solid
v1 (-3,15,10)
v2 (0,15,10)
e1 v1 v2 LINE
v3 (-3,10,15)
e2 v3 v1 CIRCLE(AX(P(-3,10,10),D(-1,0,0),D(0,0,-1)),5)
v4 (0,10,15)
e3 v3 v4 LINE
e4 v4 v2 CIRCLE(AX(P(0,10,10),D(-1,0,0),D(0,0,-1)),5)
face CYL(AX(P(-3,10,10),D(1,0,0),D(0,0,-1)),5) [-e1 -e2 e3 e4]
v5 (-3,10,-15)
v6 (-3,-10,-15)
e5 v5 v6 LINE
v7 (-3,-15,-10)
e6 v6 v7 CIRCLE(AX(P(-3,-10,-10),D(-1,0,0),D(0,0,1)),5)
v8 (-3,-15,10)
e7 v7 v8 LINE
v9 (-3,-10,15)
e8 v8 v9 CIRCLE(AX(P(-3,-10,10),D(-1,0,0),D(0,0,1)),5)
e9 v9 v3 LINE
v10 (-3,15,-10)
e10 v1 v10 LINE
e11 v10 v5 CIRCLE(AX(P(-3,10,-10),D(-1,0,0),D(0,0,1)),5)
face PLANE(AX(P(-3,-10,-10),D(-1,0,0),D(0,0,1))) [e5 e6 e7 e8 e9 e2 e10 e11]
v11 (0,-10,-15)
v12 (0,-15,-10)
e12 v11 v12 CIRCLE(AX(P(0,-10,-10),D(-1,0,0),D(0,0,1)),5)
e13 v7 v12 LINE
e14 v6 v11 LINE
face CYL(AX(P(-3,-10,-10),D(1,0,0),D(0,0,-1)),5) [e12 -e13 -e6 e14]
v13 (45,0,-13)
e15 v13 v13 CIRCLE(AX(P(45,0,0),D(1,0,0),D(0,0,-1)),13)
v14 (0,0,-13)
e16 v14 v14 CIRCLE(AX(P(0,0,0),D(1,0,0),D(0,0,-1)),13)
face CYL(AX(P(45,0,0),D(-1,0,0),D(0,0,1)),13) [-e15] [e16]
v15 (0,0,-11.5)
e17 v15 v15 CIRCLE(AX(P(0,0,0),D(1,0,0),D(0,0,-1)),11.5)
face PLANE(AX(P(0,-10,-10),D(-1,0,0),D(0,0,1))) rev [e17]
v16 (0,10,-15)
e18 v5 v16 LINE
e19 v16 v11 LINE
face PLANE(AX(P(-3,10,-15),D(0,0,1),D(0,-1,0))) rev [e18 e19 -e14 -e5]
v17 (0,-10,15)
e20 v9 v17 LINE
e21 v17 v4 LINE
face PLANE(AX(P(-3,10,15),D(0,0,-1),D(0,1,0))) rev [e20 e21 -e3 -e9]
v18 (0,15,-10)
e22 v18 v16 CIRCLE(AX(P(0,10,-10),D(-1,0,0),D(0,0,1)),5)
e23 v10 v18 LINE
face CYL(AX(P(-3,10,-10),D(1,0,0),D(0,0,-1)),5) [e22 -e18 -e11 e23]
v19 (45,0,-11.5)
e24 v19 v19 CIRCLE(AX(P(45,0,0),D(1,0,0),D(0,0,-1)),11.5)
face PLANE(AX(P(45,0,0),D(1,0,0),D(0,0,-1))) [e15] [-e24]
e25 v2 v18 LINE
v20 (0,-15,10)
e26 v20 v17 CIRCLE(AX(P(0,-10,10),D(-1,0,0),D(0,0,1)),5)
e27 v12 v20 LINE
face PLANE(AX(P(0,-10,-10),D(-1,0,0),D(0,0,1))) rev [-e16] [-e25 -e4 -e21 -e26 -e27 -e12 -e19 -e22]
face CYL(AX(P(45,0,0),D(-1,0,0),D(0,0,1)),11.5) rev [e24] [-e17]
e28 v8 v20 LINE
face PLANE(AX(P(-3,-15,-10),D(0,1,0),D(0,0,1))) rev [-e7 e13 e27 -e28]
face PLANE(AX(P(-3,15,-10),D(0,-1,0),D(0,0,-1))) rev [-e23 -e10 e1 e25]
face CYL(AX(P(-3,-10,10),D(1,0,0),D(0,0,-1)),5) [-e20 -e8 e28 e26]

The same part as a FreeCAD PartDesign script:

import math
import FreeCAD as App
import Part
import Sketcher

V = App.Vector
Q = App.Units.Quantity

doc = App.newDocument("Part")
body = doc.addObject("PartDesign::Body", "Body")

sketch1 = doc.addObject("Sketcher::SketchObject", "Sketch")
body.addObject(sketch1)
sketch1.AttachmentSupport = (doc.YZ_Plane, [""])
sketch1.MapMode = "FlatFace"
sketch1.addGeometry([
    Part.Circle(V(0, 0, 0), V(0, 0, 1), 13),
    Part.Circle(V(0, 0, 0), V(0, 0, 1), 11.5),
], False)
sketch1.addConstraint([
    Sketcher.Constraint("Coincident", 0, 3, -1, 1),
    Sketcher.Constraint("Coincident", 1, 3, -1, 1),
    Sketcher.Constraint("Diameter", 0, Q("26 mm")),
    Sketcher.Constraint("Diameter", 1, Q("23 mm")),
])
pad1 = doc.addObject("PartDesign::Pad", "Pad")
body.addObject(pad1)
pad1.Profile = sketch1
pad1.Length = 45

sketch2 = doc.addObject("Sketcher::SketchObject", "Sketch001")
body.addObject(sketch2)
sketch2.AttachmentSupport = (doc.YZ_Plane, [""])
sketch2.MapMode = "FlatFace"
sketch2.addGeometry([
    Part.LineSegment(V(15, 10, 0), V(15, -10, 0)),
    Part.ArcOfCircle(Part.Circle(V(10, -10, 0), V(0, 0, 1), 5), math.radians(-90), math.radians(0)),
    Part.LineSegment(V(10, -15, 0), V(-10, -15, 0)),
    Part.ArcOfCircle(Part.Circle(V(-10, -10, 0), V(0, 0, 1), 5), math.radians(180), math.radians(270)),
    Part.LineSegment(V(-15, -10, 0), V(-15, 10, 0)),
    Part.ArcOfCircle(Part.Circle(V(-10, 10, 0), V(0, 0, 1), 5), math.radians(90), math.radians(180)),
    Part.LineSegment(V(-10, 15, 0), V(10, 15, 0)),
    Part.ArcOfCircle(Part.Circle(V(10, 10, 0), V(0, 0, 1), 5), math.radians(0), math.radians(90)),
], False)
sketch2.addConstraint([
    Sketcher.Constraint("Tangent", 0, 2, 1, 2),
    Sketcher.Constraint("Tangent", 1, 1, 2, 1),
    Sketcher.Constraint("Tangent", 2, 2, 3, 2),
    Sketcher.Constraint("Tangent", 3, 1, 4, 1),
    Sketcher.Constraint("Tangent", 4, 2, 5, 2),
    Sketcher.Constraint("Tangent", 5, 1, 6, 1),
    Sketcher.Constraint("Tangent", 6, 2, 7, 2),
    Sketcher.Constraint("Tangent", 7, 1, 0, 1),
    Sketcher.Constraint("Vertical", 0),
    Sketcher.Constraint("Horizontal", 2),
    Sketcher.Constraint("Vertical", 4),
    Sketcher.Constraint("Horizontal", 6),
    Sketcher.Constraint("Equal", 1, 3),
    Sketcher.Constraint("Equal", 3, 5),
    Sketcher.Constraint("Equal", 5, 7),
    Sketcher.Constraint("Symmetric", 1, 3, 5, 3, -1, 1),
    Sketcher.Constraint("Equal", 6, 0),
    Sketcher.Constraint("Radius", 1, Q("5 mm")),
    Sketcher.Constraint("DistanceX", 2, 2, 2, 1, Q("20 mm")),
])
pad2 = doc.addObject("PartDesign::Pad", "Pad001")
body.addObject(pad2)
pad2.Profile = sketch2
pad2.Length = 3
pad2.Reversed = True

doc.recompute()
